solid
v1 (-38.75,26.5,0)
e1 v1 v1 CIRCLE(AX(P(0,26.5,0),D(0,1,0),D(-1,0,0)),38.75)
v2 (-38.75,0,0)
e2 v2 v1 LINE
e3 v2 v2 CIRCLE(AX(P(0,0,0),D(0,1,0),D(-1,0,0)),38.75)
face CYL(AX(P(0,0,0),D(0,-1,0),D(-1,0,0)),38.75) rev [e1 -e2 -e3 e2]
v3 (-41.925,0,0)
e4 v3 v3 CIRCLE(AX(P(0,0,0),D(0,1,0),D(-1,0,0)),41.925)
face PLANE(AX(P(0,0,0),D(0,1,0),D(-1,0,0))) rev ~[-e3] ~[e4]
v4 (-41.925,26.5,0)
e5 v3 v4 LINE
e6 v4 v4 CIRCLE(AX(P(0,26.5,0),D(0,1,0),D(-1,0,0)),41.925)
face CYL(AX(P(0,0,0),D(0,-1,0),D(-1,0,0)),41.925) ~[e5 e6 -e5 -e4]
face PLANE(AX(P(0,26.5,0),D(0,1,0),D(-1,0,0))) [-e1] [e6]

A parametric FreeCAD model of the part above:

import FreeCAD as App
import Part
import Sketcher

doc = App.newDocument("Part")
body = doc.addObject("PartDesign::Body", "Body")

# Sketch on XZ plane
sketch1 = body.newObject("Sketcher::SketchObject", "Sketch")
sketch1.AttachmentSupport = (doc.getObject("XZ_Plane"), [""])
sketch1.MapMode = "FlatFace"
sketch1.addGeometry([
    Part.Circle(App.Vector(0, 0, 0), App.Vector(0, 0, 1), 41.925),
    Part.Circle(App.Vector(0, 0, 0), App.Vector(0, 0, 1), 38.75),
], False)
sketch1.addConstraint([
    Sketcher.Constraint("Coincident", 0, 3, -1, 1),
    Sketcher.Constraint("Coincident", 1, 3, -1, 1),
    Sketcher.Constraint("Diameter", 1, 77.5),
    Sketcher.Constraint("Diameter", 0, 83.85),
])
pad1 = body.newObject("PartDesign::Pad", "Pad")
pad1.Profile = sketch1
pad1.Length = 26.5
pad1.Reversed = True

doc.recompute()
